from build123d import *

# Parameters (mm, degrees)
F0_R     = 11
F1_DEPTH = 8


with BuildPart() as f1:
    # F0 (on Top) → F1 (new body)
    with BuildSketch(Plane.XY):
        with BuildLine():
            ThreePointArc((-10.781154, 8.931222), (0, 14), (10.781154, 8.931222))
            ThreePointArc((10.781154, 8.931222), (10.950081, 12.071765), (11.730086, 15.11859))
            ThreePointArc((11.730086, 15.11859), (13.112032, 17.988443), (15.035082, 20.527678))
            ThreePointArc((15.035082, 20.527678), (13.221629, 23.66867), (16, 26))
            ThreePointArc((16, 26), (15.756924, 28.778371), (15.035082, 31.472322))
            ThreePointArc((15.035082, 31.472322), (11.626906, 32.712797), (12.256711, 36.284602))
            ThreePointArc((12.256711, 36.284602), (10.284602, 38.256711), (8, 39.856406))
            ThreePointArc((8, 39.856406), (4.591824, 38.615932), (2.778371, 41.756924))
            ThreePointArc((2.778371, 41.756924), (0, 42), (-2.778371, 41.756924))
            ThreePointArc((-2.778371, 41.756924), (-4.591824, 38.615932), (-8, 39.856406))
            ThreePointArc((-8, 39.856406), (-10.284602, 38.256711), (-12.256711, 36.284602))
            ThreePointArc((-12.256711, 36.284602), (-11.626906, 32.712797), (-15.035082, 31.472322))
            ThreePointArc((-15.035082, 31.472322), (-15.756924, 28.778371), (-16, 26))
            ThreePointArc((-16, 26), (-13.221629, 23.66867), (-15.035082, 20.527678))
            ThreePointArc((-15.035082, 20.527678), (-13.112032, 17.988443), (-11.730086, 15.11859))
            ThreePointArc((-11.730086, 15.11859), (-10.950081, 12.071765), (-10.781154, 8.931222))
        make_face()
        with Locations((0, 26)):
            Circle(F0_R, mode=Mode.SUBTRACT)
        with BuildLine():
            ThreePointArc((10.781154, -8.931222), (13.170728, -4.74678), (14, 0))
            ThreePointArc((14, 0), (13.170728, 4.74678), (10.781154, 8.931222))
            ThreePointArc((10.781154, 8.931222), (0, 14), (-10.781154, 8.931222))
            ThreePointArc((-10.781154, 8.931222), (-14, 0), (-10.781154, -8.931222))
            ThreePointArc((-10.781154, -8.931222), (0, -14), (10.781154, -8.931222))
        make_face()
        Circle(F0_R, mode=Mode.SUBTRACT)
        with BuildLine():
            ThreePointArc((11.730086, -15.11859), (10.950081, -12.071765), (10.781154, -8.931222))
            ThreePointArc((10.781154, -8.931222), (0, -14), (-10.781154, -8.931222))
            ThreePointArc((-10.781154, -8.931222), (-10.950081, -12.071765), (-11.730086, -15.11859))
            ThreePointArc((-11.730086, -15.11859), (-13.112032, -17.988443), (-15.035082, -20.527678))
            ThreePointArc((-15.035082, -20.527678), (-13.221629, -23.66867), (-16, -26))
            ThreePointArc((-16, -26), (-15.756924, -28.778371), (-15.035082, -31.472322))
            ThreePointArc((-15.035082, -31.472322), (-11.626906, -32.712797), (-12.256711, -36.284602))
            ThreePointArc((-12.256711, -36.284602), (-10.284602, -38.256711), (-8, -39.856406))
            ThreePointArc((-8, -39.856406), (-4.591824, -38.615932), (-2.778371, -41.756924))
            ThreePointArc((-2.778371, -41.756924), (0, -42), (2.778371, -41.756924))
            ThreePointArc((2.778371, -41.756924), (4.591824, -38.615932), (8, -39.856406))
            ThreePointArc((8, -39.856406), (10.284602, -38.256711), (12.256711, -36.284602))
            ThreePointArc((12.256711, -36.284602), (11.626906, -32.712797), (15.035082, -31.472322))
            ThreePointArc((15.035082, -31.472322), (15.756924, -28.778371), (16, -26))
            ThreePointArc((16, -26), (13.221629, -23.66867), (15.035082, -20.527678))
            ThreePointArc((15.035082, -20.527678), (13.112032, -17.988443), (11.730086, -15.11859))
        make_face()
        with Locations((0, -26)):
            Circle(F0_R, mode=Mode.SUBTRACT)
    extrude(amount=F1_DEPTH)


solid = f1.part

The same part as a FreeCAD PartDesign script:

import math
import FreeCAD as App
import Part
import Sketcher
Q = App.Units.Quantity

doc = App.newDocument("Part")
params = doc.addObject("Spreadsheet::Sheet", "Params")
for row, (alias, value) in enumerate([
    ("sketch1_diameter", "22 mm"),
    ("sketch1_radius", "14.000001 mm"),
    ("sketch1_radius2", "16 mm"),
    ("pad1_length", "8 mm"),
], start=1):
    params.set(f"A{row}", alias)
    params.set(f"B{row}", "=" + value)
    params.setAlias(f"B{row}", alias)

body = doc.addObject("PartDesign::Body", "Body")

sketch1 = doc.addObject("Sketcher::SketchObject", "Sketch")
body.addObject(sketch1)
sketch1.AttachmentSupport = (doc.XY_Plane, [""])
sketch1.MapMode = "FlatFace"
sketch1.addGeometry([
    Part.ArcOfCircle(Part.Circle(App.Vector(-26.765143, 9.646272, 0), App.Vector(0, 0, 1), 15.999975), math.radians(-2.561442), math.radians(20.000016)),
    Part.ArcOfCircle(Part.Circle(App.Vector(0.000001, 0, 0), App.Vector(0, 0, 1), 14.000001), math.radians(140.361293), math.radians(219.638707)),
    Part.ArcOfCircle(Part.Circle(App.Vector(-26.765143, -9.646272, 0), App.Vector(0, 0, 1), 15.999975), math.radians(-20.000016), math.radians(2.561442)),
    Part.ArcOfCircle(Part.Circle(App.Vector(-26.76516, -9.646273, 0), App.Vector(0, 0, 1), 15.99999), math.radians(-42.850536), math.radians(-19.999991)),
    Part.ArcOfCircle(Part.Circle(App.Vector(-16, -23.178769, 0), App.Vector(0, 0, 1), 2.821231), math.radians(-90.000007), math.radians(70.000007)),
    Part.ArcOfCircle(Part.Circle(App.Vector(0, -26, 0), App.Vector(0, 0, 1), 16), math.radians(-180), math.radians(-160.000001)),
    Part.ArcOfCircle(Part.Circle(App.Vector(-14.070165, -34.123413, 0), App.Vector(0, 0, 1), 2.821232), math.radians(-49.999986), math.radians(109.999984)),
    Part.ArcOfCircle(Part.Circle(App.Vector(-0.000011, -26.000011, 0), App.Vector(0, 0, 1), 15.999984), math.radians(-140.000004), math.radians(-119.999986)),
    Part.ArcOfCircle(Part.Circle(App.Vector(-5.556742, -41.267023, 0), App.Vector(0, 0, 1), 2.821232), math.radians(-9.99999), math.radians(149.999981)),
    Part.ArcOfCircle(Part.Circle(App.Vector(0, -26.000001, 0), App.Vector(0, 0, 1), 15.999999), math.radians(-100.000001), math.radians(-79.999999)),
    Part.ArcOfCircle(Part.Circle(App.Vector(5.556742, -41.267023, 0), App.Vector(0, 0, 1), 2.821232), math.radians(30.000019), math.radians(189.99999)),
    Part.ArcOfCircle(Part.Circle(App.Vector(0.000011, -26.000011, 0), App.Vector(0, 0, 1), 15.999984), math.radians(-60.000014), math.radians(-39.999996)),
    Part.ArcOfCircle(Part.Circle(App.Vector(14.070165, -34.123413, 0), App.Vector(0, 0, 1), 2.821232), math.radians(70.000016), math.radians(229.999986)),
    Part.ArcOfCircle(Part.Circle(App.Vector(0, -26, 0), App.Vector(0, 0, 1), 16), math.radians(-19.999999), math.radians(0)),
    Part.ArcOfCircle(Part.Circle(App.Vector(16, -23.178769, 0), App.Vector(0, 0, 1), 2.821231), math.radians(109.999993), math.radians(270.000007)),
    Part.ArcOfCircle(Part.Circle(App.Vector(26.76516, -9.646273, 0), App.Vector(0, 0, 1), 15.99999), math.radians(-160.000009), math.radians(-137.149464)),
    Part.ArcOfCircle(Part.Circle(App.Vector(26.765143, -9.646272, 0), App.Vector(0, 0, 1), 15.999975), math.radians(177.438558), math.radians(200.000016)),
    Part.ArcOfCircle(Part.Circle(App.Vector(-0.000004, 0.000001, 0), App.Vector(0, 0, 1), 14.000004), math.radians(-39.638702), math.radians(-0.000005)),
    Part.ArcOfCircle(Part.Circle(App.Vector(-0.000004, -0.000001, 0), App.Vector(0, 0, 1), 14.000004), math.radians(0.000005), math.radians(39.638702)),
    Part.ArcOfCircle(Part.Circle(App.Vector(26.765143, 9.646272, 0), App.Vector(0, 0, 1), 15.999975), math.radians(159.999984), math.radians(182.561442)),
    Part.ArcOfCircle(Part.Circle(App.Vector(26.76516, 9.646273, 0), App.Vector(0, 0, 1), 15.99999), math.radians(137.149464), math.radians(160.000009)),
    Part.ArcOfCircle(Part.Circle(App.Vector(16, 23.178769, 0), App.Vector(0, 0, 1), 2.821231), math.radians(89.999993), math.radians(250.000007)),
    Part.ArcOfCircle(Part.Circle(App.Vector(0, 26, 0), App.Vector(0, 0, 1), 16), math.radians(0), math.radians(19.999999)),
    Part.ArcOfCircle(Part.Circle(App.Vector(14.070165, 34.123413, 0), App.Vector(0, 0, 1), 2.821232), math.radians(130.000014), math.radians(289.999984)),
    Part.ArcOfCircle(Part.Circle(App.Vector(0.000011, 26.000011, 0), App.Vector(0, 0, 1), 15.999984), math.radians(39.999996), math.radians(60.000014)),
    Part.ArcOfCircle(Part.Circle(App.Vector(5.556742, 41.267023, 0), App.Vector(0, 0, 1), 2.821232), math.radians(170.00001), math.radians(329.999981)),
    Part.ArcOfCircle(Part.Circle(App.Vector(0, 26.000001, 0), App.Vector(0, 0, 1), 15.999999), math.radians(79.999999), math.radians(100.000001)),
    Part.ArcOfCircle(Part.Circle(App.Vector(-5.556742, 41.267023, 0), App.Vector(0, 0, 1), 2.821232), math.radians(-149.999981), math.radians(9.99999)),
    Part.ArcOfCircle(Part.Circle(App.Vector(-0.000011, 26.000011, 0), App.Vector(0, 0, 1), 15.999984), math.radians(119.999986), math.radians(140.000004)),
    Part.ArcOfCircle(Part.Circle(App.Vector(-14.070165, 34.123413, 0), App.Vector(0, 0, 1), 2.821232), math.radians(-109.999984), math.radians(49.999986)),
    Part.ArcOfCircle(Part.Circle(App.Vector(0, 26, 0), App.Vector(0, 0, 1), 16), math.radians(160.000001), math.radians(180)),
    Part.ArcOfCircle(Part.Circle(App.Vector(-16, 23.178769, 0), App.Vector(0, 0, 1), 2.821231), math.radians(-70.000007), math.radians(90.000007)),
    Part.ArcOfCircle(Part.Circle(App.Vector(-26.76516, 9.646273, 0), App.Vector(0, 0, 1), 15.99999), math.radians(19.999991), math.radians(42.850536)),
    Part.Circle(App.Vector(0, -26, 0), App.Vector(0, 0, 1), 11),
    Part.Circle(App.Vector(0, 0, 0), App.Vector(0, 0, 1), 11),
    Part.Circle(App.Vector(0, 26, 0), App.Vector(0, 0, 1), 11),
], False)
sketch1.addConstraint([
    Sketcher.Constraint("Coincident", 0, 1, 1, 1),
    Sketcher.Constraint("Coincident", 1, 2, 2, 2),
    Sketcher.Constraint("Tangent", 2, 1, 3, 2),
    Sketcher.Constraint("Coincident", 3, 1, 4, 2),
    Sketcher.Constraint("Coincident", 4, 1, 5, 1),
    Sketcher.Constraint("Coincident", 5, 2, 6, 2),
    Sketcher.Constraint("Coincident", 6, 1, 7, 1),
    Sketcher.Constraint("Coincident", 7, 2, 8, 2),
    Sketcher.Constraint("Coincident", 8, 1, 9, 1),
    Sketcher.Constraint("Coincident", 9, 2, 10, 2),
    Sketcher.Constraint("Coincident", 10, 1, 11, 1),
    Sketcher.Constraint("Coincident", 11, 2, 12, 2),
    Sketcher.Constraint("Coincident", 12, 1, 13, 1),
    Sketcher.Constraint("Coincident", 13, 2, 14, 2),
    Sketcher.Constraint("Coincident", 14, 1, 15, 2),
    Sketcher.Constraint("Tangent", 15, 1, 16, 2),
    Sketcher.Constraint("Coincident", 16, 1, 17, 1),
    Sketcher.Constraint("Tangent", 17, 2, 18, 1),
    Sketcher.Constraint("Coincident", 18, 2, 19, 2),
    Sketcher.Constraint("Tangent", 19, 1, 20, 2),
    Sketcher.Constraint("Coincident", 20, 1, 21, 2),
    Sketcher.Constraint("Coincident", 21, 1, 22, 1),
    Sketcher.Constraint("Coincident", 22, 2, 23, 2),
    Sketcher.Constraint("Coincident", 23, 1, 24, 1),
    Sketcher.Constraint("Coincident", 24, 2, 25, 2),
    Sketcher.Constraint("Coincident", 25, 1, 26, 1),
    Sketcher.Constraint("Coincident", 26, 2, 27, 2),
    Sketcher.Constraint("Coincident", 27, 1, 28, 1),
    Sketcher.Constraint("Coincident", 28, 2, 29, 2),
    Sketcher.Constraint("Coincident", 29, 1, 30, 1),
    Sketcher.Constraint("Coincident", 30, 2, 31, 2),
    Sketcher.Constraint("Coincident", 31, 1, 32, 2),
    Sketcher.Constraint("Tangent", 32, 1, 0, 2),
    Sketcher.Constraint("Coincident", 1, 3, -1, 1),
    Sketcher.Constraint("Coincident", 17, 3, -1, 1),
    Sketcher.Constraint("Coincident", 34, 3, -1, 1),
    Sketcher.Constraint("Coincident", 9, 3, 5, 3),
    Sketcher.Constraint("Coincident", 13, 3, 5, 3),
    Sketcher.Constraint("Coincident", 26, 3, 22, 3),
    Sketcher.Constraint("Coincident", 30, 3, 22, 3),
    Sketcher.Constraint("Coincident", 33, 3, 5, 3),
    Sketcher.Constraint("Coincident", 35, 3, 22, 3),
    Sketcher.Constraint("Equal", 0, 2),
    Sketcher.Constraint("Equal", 4, 6),
    Sketcher.Constraint("Equal", 6, 8),
    Sketcher.Constraint("Equal", 5, 9),
    Sketcher.Constraint("Equal", 8, 10),
    Sketcher.Constraint("Equal", 7, 11),
    Sketcher.Constraint("Equal", 10, 12),
    Sketcher.Constraint("Equal", 9, 13),
    Sketcher.Constraint("Equal", 12, 14),
    Sketcher.Constraint("Equal", 3, 15),
    Sketcher.Constraint("Equal", 2, 16),
    Sketcher.Constraint("Equal", 17, 18),
    Sketcher.Constraint("Equal", 16, 19),
    Sketcher.Constraint("Equal", 15, 20),
    Sketcher.Constraint("Equal", 14, 21),
    Sketcher.Constraint("Equal", 13, 22),
    Sketcher.Constraint("Equal", 21, 23),
    Sketcher.Constraint("Equal", 11, 24),
    Sketcher.Constraint("Equal", 23, 25),
    Sketcher.Constraint("Equal", 22, 26),
    Sketcher.Constraint("Equal", 25, 27),
    Sketcher.Constraint("Equal", 24, 28),
    Sketcher.Constraint("Equal", 27, 29),
    Sketcher.Constraint("Equal", 26, 30),
    Sketcher.Constraint("Equal", 29, 31),
    Sketcher.Constraint("Equal", 20, 32),
    Sketcher.Constraint("Equal", 33, 34),
    Sketcher.Constraint("Equal", 34, 35),
    Sketcher.Constraint("Symmetric", 0, 3, 16, 3, -1, 1),
    Sketcher.Constraint("Symmetric", 2, 3, 19, 3, -1, 1),
    Sketcher.Constraint("Symmetric", 4, 3, 21, 3, -1, 1),
    Sketcher.Constraint("Symmetric", 5, 3, 22, 3, -1, 1),
    Sketcher.Constraint("Symmetric", 6, 3, 23, 3, -1, 1),
    Sketcher.Constraint("Symmetric", 7, 3, 24, 3, -1, 1),
    Sketcher.Constraint("Symmetric", 8, 3, 25, 3, -1, 1),
    Sketcher.Constraint("Symmetric", 10, 3, 27, 3, -1, 1),
    Sketcher.Constraint("Symmetric", 11, 3, 28, 3, -1, 1),
    Sketcher.Constraint("Symmetric", 12, 3, 29, 3, -1, 1),
    Sketcher.Constraint("Symmetric", 14, 3, 31, 3, -1, 1),
    Sketcher.Constraint("Symmetric", 8, 3, 10, 3, -2),
    Sketcher.Constraint("Symmetric", 7, 3, 11, 3, -2),
    Sketcher.Constraint("Symmetric", 6, 3, 12, 3, -2),
    Sketcher.Constraint("Symmetric", 4, 3, 14, 3, -2),
    Sketcher.Constraint("Symmetric", 3, 3, 15, 3, -2),
    Sketcher.Constraint("PointOnObject", 5, 3, -2),
    Sketcher.Constraint("PointOnObject", 17, 2, -1),
    Sketcher.Constraint("Horizontal", 2, 3, 3, 3),
    Sketcher.Constraint("Horizontal", 33, 3, 4, 1),
    Sketcher.Constraint("Horizontal", 2, 1, 15, 1),
    Sketcher.Constraint("Horizontal", 1, 2, 16, 1),
    Sketcher.Constraint("Horizontal", 19, 1, 32, 1),
    Sketcher.Constraint("Vertical", 31, 3, 4, 1),
    Sketcher.Constraint("Vertical", 3, 1, 5, 2),
    Sketcher.Constraint("Vertical", 15, 1, 19, 1),
    Sketcher.Constraint("Diameter", 33, Q("22 mm")),
    Sketcher.Constraint("Radius", 1, Q("14.000001 mm")),
    Sketcher.Constraint("Radius", 5, Q("16 mm")),
    Sketcher.Constraint("DistanceY", 5, 3, -1, 1, Q("26 mm")),
    Sketcher.Constraint("DistanceX", 7, 2, -1, 1, Q("8 mm")),
    Sketcher.Constraint("Radius", 3, Q("15.99999 mm")),
    Sketcher.Constraint("Radius", 4, Q("2.821231 mm")),
    Sketcher.Constraint("Radius", 7, Q("15.999984 mm")),
    Sketcher.Constraint("DistanceY", 6, 1, -1, 1, Q("36.284602 mm")),
    Sketcher.Constraint("DistanceX", 3, 3, -1, 1, Q("26.76516 mm")),
    Sketcher.Constraint("DistanceY", 7, 3, -1, 1, Q("26.000011 mm")),
    Sketcher.Constraint("DistanceY", 2, 1, -1, 1, Q("15.11859 mm")),
    Sketcher.Constraint("DistanceX", 3, 1, -1, 1, Q("15.035082 mm")),
    Sketcher.Constraint("DistanceX", 6, 1, -1, 1, Q("12.256711 mm")),
    Sketcher.Constraint("DistanceX", 8, 1, -1, 1, Q("2.778371 mm")),
])
sketch1.setExpression("Constraints[96]", "Params.sketch1_diameter")
sketch1.setExpression("Constraints[97]", "Params.sketch1_radius")
sketch1.setExpression("Constraints[98]", "Params.sketch1_radius2")
pad1 = doc.addObject("PartDesign::Pad", "Pad")
body.addObject(pad1)
pad1.Profile = sketch1
pad1.setExpression("Length", "Params.pad1_length")

doc.recompute()
